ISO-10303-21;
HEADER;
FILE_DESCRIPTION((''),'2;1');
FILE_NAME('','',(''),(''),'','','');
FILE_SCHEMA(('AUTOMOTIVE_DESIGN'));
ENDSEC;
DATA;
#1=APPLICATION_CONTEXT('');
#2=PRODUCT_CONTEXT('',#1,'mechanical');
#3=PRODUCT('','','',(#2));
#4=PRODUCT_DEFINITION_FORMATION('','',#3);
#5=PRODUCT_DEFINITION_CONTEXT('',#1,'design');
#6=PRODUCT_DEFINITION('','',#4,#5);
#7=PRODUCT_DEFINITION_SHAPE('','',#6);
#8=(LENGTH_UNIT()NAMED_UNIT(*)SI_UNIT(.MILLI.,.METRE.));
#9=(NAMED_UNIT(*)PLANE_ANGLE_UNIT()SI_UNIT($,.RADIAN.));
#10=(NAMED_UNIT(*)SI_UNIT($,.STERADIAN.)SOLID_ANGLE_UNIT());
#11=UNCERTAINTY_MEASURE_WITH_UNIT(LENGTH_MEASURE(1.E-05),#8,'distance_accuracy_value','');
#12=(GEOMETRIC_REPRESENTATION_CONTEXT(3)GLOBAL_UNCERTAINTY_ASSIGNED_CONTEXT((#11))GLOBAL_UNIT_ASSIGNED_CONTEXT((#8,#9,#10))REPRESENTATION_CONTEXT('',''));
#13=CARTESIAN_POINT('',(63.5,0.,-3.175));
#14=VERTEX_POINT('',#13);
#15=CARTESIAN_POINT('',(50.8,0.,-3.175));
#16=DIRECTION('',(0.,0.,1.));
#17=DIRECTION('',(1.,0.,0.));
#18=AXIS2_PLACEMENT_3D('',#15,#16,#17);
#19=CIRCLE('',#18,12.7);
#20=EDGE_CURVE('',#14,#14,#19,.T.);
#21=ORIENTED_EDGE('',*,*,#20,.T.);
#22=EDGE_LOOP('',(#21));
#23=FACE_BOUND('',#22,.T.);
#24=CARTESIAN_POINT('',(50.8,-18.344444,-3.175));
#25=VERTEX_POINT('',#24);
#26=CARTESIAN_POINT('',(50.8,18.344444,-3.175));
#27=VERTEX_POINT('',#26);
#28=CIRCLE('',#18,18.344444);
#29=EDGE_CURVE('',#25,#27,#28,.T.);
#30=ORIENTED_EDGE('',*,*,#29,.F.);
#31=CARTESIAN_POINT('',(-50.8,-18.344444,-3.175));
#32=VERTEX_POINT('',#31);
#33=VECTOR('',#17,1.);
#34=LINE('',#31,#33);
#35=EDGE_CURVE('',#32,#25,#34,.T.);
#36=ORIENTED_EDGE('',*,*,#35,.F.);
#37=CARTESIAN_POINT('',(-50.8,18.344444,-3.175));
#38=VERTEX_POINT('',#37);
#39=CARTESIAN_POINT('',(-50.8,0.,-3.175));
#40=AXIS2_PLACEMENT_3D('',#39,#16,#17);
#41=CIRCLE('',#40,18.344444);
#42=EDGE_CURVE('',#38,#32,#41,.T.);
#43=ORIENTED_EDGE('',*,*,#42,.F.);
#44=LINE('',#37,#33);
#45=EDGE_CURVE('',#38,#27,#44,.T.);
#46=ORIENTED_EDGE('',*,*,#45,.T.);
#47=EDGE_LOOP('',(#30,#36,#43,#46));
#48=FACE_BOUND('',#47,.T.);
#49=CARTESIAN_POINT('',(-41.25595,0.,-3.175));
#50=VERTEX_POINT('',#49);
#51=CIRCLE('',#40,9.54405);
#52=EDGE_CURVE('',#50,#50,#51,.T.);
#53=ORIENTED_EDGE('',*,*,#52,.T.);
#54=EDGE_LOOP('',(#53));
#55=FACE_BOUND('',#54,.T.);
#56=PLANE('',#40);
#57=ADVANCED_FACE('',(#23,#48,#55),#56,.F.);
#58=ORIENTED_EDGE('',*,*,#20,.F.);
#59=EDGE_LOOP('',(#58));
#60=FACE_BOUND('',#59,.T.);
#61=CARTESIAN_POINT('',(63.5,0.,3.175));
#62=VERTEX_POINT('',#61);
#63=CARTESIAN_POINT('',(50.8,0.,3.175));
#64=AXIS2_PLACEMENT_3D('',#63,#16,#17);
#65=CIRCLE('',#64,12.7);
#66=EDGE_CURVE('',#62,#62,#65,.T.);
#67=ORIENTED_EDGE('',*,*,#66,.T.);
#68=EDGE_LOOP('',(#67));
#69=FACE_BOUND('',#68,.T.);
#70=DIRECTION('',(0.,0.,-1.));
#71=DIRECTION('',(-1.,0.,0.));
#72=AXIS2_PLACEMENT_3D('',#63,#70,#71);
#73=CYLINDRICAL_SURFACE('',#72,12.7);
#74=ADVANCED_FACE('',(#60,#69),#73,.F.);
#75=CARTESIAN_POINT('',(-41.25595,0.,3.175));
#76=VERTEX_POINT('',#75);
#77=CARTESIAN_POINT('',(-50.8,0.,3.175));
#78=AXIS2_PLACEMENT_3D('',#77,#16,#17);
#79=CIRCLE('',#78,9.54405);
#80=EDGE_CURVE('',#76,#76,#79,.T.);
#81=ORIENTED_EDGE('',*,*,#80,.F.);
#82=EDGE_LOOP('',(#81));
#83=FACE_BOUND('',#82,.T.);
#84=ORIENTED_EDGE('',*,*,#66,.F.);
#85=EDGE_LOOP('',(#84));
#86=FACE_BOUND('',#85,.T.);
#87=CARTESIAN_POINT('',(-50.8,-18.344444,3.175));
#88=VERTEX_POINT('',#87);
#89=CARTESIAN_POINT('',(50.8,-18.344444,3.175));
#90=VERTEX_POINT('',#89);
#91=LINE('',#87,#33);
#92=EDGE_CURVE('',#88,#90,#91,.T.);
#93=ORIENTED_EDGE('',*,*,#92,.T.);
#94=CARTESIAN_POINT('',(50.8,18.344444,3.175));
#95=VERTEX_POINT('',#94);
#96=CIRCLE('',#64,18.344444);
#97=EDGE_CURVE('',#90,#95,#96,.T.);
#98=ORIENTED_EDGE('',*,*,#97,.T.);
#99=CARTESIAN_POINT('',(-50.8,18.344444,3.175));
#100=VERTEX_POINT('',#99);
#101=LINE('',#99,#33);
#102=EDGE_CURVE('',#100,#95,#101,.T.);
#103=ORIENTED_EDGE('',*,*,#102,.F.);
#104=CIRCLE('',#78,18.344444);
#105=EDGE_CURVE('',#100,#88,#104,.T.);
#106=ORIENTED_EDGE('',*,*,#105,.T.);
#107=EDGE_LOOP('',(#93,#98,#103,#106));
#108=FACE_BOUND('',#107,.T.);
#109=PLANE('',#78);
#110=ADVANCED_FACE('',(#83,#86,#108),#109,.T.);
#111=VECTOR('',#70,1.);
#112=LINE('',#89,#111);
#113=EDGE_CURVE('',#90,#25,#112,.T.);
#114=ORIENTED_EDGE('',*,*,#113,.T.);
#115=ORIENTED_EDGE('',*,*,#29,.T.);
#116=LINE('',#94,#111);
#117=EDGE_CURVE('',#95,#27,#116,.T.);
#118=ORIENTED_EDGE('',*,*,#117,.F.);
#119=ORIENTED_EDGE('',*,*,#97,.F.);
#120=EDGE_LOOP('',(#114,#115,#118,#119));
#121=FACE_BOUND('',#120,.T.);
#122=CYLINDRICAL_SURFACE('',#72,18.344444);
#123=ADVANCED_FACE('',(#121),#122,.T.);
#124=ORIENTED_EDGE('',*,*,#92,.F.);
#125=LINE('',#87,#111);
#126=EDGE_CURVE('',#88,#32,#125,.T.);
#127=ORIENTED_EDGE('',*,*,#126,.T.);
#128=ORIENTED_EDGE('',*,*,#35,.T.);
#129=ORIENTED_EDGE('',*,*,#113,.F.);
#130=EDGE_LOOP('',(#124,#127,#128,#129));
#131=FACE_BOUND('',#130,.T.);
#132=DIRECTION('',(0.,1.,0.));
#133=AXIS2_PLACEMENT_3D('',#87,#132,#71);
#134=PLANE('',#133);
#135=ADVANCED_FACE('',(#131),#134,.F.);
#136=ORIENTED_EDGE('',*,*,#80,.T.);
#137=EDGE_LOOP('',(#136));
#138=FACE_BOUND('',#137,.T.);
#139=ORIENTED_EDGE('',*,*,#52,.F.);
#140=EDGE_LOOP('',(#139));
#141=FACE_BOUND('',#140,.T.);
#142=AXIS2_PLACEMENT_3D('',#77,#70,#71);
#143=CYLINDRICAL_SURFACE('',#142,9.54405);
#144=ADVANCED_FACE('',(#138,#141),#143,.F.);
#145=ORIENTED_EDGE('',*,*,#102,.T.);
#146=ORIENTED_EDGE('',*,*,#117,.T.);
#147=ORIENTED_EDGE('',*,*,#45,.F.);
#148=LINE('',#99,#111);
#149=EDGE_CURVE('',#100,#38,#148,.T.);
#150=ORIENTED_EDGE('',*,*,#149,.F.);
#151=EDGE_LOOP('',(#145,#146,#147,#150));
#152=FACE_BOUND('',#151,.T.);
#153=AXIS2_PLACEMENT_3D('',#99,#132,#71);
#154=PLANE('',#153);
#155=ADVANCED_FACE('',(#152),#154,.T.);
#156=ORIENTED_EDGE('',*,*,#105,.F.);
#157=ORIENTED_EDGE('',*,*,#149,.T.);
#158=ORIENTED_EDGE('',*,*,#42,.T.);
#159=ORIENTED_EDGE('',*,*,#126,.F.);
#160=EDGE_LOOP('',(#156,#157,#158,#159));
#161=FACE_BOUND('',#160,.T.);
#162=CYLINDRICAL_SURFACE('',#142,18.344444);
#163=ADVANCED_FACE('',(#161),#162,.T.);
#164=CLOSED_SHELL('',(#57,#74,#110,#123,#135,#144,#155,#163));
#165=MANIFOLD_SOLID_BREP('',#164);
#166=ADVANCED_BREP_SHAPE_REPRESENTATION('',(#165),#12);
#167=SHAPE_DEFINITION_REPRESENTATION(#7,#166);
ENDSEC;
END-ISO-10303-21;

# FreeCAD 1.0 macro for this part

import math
import FreeCAD as App
import Part
import Sketcher

V = App.Vector
Q = App.Units.Quantity

doc = App.newDocument("Part")
body = doc.addObject("PartDesign::Body", "Body")

# Sketch on XY plane
sketch1 = body.newObject("Sketcher::SketchObject", "Sketch")
sketch1.AttachmentSupport = (doc.getObject("XY_Plane"), [""])
sketch1.MapMode = "FlatFace"
sketch1.addGeometry(Part.LineSegment(V(51, 18, 0), V(-51, 18, 0)), False)
sketch1.addGeometry(Part.ArcOfCircle(Part.Circle(V(-51, 0, 0), V(0, 0, 1), 18), math.radians(90), math.radians(270)), False)
sketch1.addGeometry(Part.LineSegment(V(-51, -18, 0), V(51, -18, 0)), False)
sketch1.addGeometry(Part.ArcOfCircle(Part.Circle(V(51, 0, 0), V(0, 0, 1), 18), math.radians(-90), math.radians(90)), False)
sketch1.addGeometry(Part.Circle(V(51, 0, 0), V(0, 0, 1), 13), False)
sketch1.addGeometry(Part.Circle(V(-51, 0, 0), V(0, 0, 1), 10), False)
sketch1.addConstraint(Sketcher.Constraint("Tangent", 0, 2, 1, 1))
sketch1.addConstraint(Sketcher.Constraint("Tangent", 1, 2, 2, 1))
sketch1.addConstraint(Sketcher.Constraint("Tangent", 2, 2, 3, 1))
sketch1.addConstraint(Sketcher.Constraint("Tangent", 3, 2, 0, 1))
sketch1.addConstraint(Sketcher.Constraint("Horizontal", 0))
sketch1.addConstraint(Sketcher.Constraint("Horizontal", 2))
sketch1.addConstraint(Sketcher.Constraint("Coincident", 4, 3, 3, 3))
sketch1.addConstraint(Sketcher.Constraint("Coincident", 5, 3, 1, 3))
sketch1.addConstraint(Sketcher.Constraint("Symmetric", 1, 3, 3, 3, -1, 1))
sketch1.addConstraint(Sketcher.Constraint("Diameter", 4, Q("1 in")))
sketch1.addConstraint(Sketcher.Constraint("DistanceX", 0, 2, 0, 1, Q("4 in")))
sketch1.addConstraint(Sketcher.Constraint("Diameter", 5, Q("0.7515 in")))
sketch1.addConstraint(Sketcher.Constraint("Radius", 1, Q("18.344444 mm")))
pad1 = body.newObject("PartDesign::Pad", "Pad")
pad1.Profile = sketch1
pad1.Length = Q("0.25 in")
pad1.Midplane = True

doc.recompute()
